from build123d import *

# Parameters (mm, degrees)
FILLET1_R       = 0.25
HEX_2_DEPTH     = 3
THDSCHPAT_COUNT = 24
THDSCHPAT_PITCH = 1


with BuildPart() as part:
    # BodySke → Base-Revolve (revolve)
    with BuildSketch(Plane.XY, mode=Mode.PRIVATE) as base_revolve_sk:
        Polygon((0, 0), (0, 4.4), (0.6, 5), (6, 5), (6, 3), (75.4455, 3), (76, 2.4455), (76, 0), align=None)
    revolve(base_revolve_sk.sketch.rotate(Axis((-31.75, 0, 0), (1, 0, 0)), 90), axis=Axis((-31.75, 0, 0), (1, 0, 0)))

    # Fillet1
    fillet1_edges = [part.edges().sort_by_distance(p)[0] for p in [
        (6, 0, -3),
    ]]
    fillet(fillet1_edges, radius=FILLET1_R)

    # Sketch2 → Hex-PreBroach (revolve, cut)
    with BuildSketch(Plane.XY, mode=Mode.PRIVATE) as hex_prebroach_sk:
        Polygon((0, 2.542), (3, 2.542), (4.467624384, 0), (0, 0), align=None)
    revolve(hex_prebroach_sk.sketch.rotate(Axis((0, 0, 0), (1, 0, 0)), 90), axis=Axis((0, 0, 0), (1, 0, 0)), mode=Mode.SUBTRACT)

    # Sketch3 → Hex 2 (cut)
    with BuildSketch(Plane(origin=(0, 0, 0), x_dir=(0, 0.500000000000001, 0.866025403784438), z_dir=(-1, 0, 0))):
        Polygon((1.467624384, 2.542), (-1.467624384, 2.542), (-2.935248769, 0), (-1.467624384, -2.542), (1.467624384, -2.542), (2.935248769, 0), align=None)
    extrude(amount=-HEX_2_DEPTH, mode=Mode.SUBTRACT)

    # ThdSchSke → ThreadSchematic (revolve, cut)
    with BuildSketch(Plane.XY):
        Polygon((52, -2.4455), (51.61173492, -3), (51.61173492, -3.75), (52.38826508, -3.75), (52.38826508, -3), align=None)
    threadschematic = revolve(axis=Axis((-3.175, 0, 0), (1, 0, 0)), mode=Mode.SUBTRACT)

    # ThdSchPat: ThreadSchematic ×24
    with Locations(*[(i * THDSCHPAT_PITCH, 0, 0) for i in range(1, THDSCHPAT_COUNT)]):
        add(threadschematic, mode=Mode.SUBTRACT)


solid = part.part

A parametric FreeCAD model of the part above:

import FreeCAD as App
import Part
import Sketcher
Q = App.Units.Quantity


def edges_at(feature, points):
    """Names of the edges that pass closest to the given points."""
    edges = feature.Shape.Edges
    near = lambda p: min(range(len(edges)), key=lambda i: edges[i].distToShape(Part.Vertex(*p))[0])
    return sorted({f"Edge{near(p) + 1}" for p in points})

doc = App.newDocument("Part")
params = doc.addObject("Spreadsheet::Sheet", "Params")
for row, (alias, value) in enumerate([
    ("sketch1_width", "76 mm"),
    ("sketch1_height", "2 mm"),
    ("sketch1_width2", "5.4 mm"),
    ("sketch1_height2", "4.4 mm"),
    ("revolution_angle", "360 deg"),
    ("fillet_radius", "0.25 mm"),
    ("sketch2_width", "3 mm"),
    ("groove_angle", "360 deg"),
    ("pocket1_length", "3 mm"),
    ("sketch4_height", "0.75 mm"),
    ("groove2_angle", "360 deg"),
    ("linearpattern_pitch", "1 mm"),
], start=1):
    params.set(f"A{row}", alias)
    params.set(f"B{row}", "=" + value)
    params.setAlias(f"B{row}", alias)

body = doc.addObject("PartDesign::Body", "Body")

sketch1 = body.newObject("Sketcher::SketchObject", "Sketch")
sketch1.AttachmentSupport = (doc.getObject("XY_Plane"), [""])
sketch1.MapMode = "FlatFace"
sketch1.addGeometry([
    Part.LineSegment(App.Vector(0, 4.4, 0), App.Vector(0, 0, 0)),
    Part.LineSegment(App.Vector(0, 0, 0), App.Vector(76, 0, 0)),
    Part.LineSegment(App.Vector(76, 0, 0), App.Vector(76, 2.4, 0)),
    Part.LineSegment(App.Vector(76, 2.4, 0), App.Vector(75.4, 3, 0)),
    Part.LineSegment(App.Vector(75.4, 3, 0), App.Vector(6, 3, 0)),
    Part.LineSegment(App.Vector(6, 3, 0), App.Vector(6, 5, 0)),
    Part.LineSegment(App.Vector(6, 5, 0), App.Vector(0.6, 5, 0)),
    Part.LineSegment(App.Vector(0.6, 5, 0), App.Vector(0, 4.4, 0)),
], False)
sketch1.addConstraint([
    Sketcher.Constraint("Coincident", 0, 2, 1, 1),
    Sketcher.Constraint("Coincident", 1, 2, 2, 1),
    Sketcher.Constraint("Coincident", 2, 2, 3, 1),
    Sketcher.Constraint("Coincident", 3, 2, 4, 1),
    Sketcher.Constraint("Coincident", 4, 2, 5, 1),
    Sketcher.Constraint("Coincident", 5, 2, 6, 1),
    Sketcher.Constraint("Coincident", 6, 2, 7, 1),
    Sketcher.Constraint("Coincident", 7, 2, 0, 1),
    Sketcher.Constraint("Vertical", 0),
    Sketcher.Constraint("Horizontal", 1),
    Sketcher.Constraint("Vertical", 2),
    Sketcher.Constraint("Horizontal", 4),
    Sketcher.Constraint("Vertical", 5),
    Sketcher.Constraint("Horizontal", 6),
    Sketcher.Constraint("Coincident", 0, 2, -1, 1),
    Sketcher.Constraint("Perpendicular", 3, 7),
    Sketcher.Constraint("DistanceX", 1, 1, 1, 2, 76.0),
    Sketcher.Constraint("DistanceY", 5, 1, 5, 2, 2.0),
    Sketcher.Constraint("Angle", 3, Q("135 deg")),
    Sketcher.Constraint("DistanceX", 6, 2, 6, 1, 5.4),
    Sketcher.Constraint("DistanceY", 0, 2, 0, 1, 4.4),
    Sketcher.Constraint("DistanceY", -1, 1, 3, 2, 3.0),
    Sketcher.Constraint("DistanceX", 4, 2, 4, 1, 69.4455),
])
sketch1.setExpression("Constraints[16]", "Params.sketch1_width")
sketch1.setExpression("Constraints[17]", "Params.sketch1_height")
sketch1.setExpression("Constraints[19]", "Params.sketch1_width2")
sketch1.setExpression("Constraints[20]", "Params.sketch1_height2")
revolution = body.newObject("PartDesign::Revolution", "Revolution")
revolution.Profile = sketch1
revolution.ReferenceAxis = (sketch1, ["H_Axis"])
revolution.setExpression("Angle", "Params.revolution_angle")
doc.recompute()

fillet = body.newObject("PartDesign::Fillet", "Fillet")
fillet.Base = (revolution, edges_at(revolution, [(6, 0, -3)]))
fillet.setExpression("Radius", "Params.fillet_radius")

sketch2 = body.newObject("Sketcher::SketchObject", "Sketch001")
sketch2.AttachmentSupport = (doc.getObject("XY_Plane"), [""])
sketch2.MapMode = "FlatFace"
sketch2.addGeometry([
    Part.LineSegment(App.Vector(3, 2.5, 0), App.Vector(0, 2.5, 0)),
    Part.LineSegment(App.Vector(0, 2.5, 0), App.Vector(0, 0, 0)),
    Part.LineSegment(App.Vector(0, 0, 0), App.Vector(4.5, 0, 0)),
    Part.LineSegment(App.Vector(4.5, 0, 0), App.Vector(3, 2.5, 0)),
], False)
sketch2.addConstraint([
    Sketcher.Constraint("Coincident", 0, 2, 1, 1),
    Sketcher.Constraint("Coincident", 1, 2, 2, 1),
    Sketcher.Constraint("Coincident", 2, 2, 3, 1),
    Sketcher.Constraint("Coincident", 3, 2, 0, 1),
    Sketcher.Constraint("Horizontal", 0),
    Sketcher.Constraint("Vertical", 1),
    Sketcher.Constraint("Horizontal", 2),
    Sketcher.Constraint("Coincident", 1, 2, -1, 1),
    Sketcher.Constraint("DistanceX", 0, 2, 0, 1, 3.0),
    Sketcher.Constraint("Angle", 3, Q("120 deg")),
    Sketcher.Constraint("DistanceY", 1, 2, 1, 1, 2.542),
])
sketch2.setExpression("Constraints[8]", "Params.sketch2_width")
groove = body.newObject("PartDesign::Groove", "Groove")
groove.Profile = sketch2
groove.ReferenceAxis = (sketch2, ["H_Axis"])
groove.setExpression("Angle", "Params.groove_angle")

sketch3 = body.newObject("Sketcher::SketchObject", "Sketch002")
sketch3.AttachmentSupport = (doc.getObject("YZ_Plane"), [""])
sketch3.MapMode = "FlatFace"
sketch3.addGeometry([
    Part.LineSegment(App.Vector(2.9, 0, 0), App.Vector(1.5, -2.5, 0)),
    Part.LineSegment(App.Vector(1.5, -2.5, 0), App.Vector(-1.5, -2.5, 0)),
    Part.LineSegment(App.Vector(-1.5, -2.5, 0), App.Vector(-2.9, 0, 0)),
    Part.LineSegment(App.Vector(-2.9, 0, 0), App.Vector(-1.5, 2.5, 0)),
    Part.LineSegment(App.Vector(-1.5, 2.5, 0), App.Vector(1.5, 2.5, 0)),
    Part.LineSegment(App.Vector(1.5, 2.5, 0), App.Vector(2.9, 0, 0)),
], False)
sketch3.addConstraint([
    Sketcher.Constraint("Coincident", 0, 2, 1, 1),
    Sketcher.Constraint("Coincident", 1, 2, 2, 1),
    Sketcher.Constraint("Coincident", 2, 2, 3, 1),
    Sketcher.Constraint("Coincident", 3, 2, 4, 1),
    Sketcher.Constraint("Coincident", 4, 2, 5, 1),
    Sketcher.Constraint("Coincident", 5, 2, 0, 1),
    Sketcher.Constraint("Horizontal", 1),
    Sketcher.Constraint("Horizontal", 4),
    Sketcher.Constraint("Symmetric", 0, 2, 3, 2, -1, 1),
    Sketcher.Constraint("Symmetric", 2, 2, 5, 2, -1, 1),
    Sketcher.Constraint("PointOnObject", 2, 2, -1),
    Sketcher.Constraint("Parallel", 2, 5),
    Sketcher.Constraint("Vertical", 1, 2, 3, 2),
    Sketcher.Constraint("Angle", 0, Q("-120 deg")),
    Sketcher.Constraint("DistanceY", 0, 2, -1, 1, 2.542),
    Sketcher.Constraint("DistanceX", 1, 2, 1, 1, 2.935249),
])
pocket1 = body.newObject("PartDesign::Pocket", "Pocket")
pocket1.Profile = sketch3
pocket1.setExpression("Length", "Params.pocket1_length")
pocket1.Reversed = True

sketch4 = body.newObject("Sketcher::SketchObject", "Sketch003")
sketch4.AttachmentSupport = (doc.getObject("XY_Plane"), [""])
sketch4.MapMode = "FlatFace"
sketch4.addGeometry([
    Part.LineSegment(App.Vector(52, -2.4, 0), App.Vector(51.6, -3, 0)),
    Part.LineSegment(App.Vector(51.6, -3, 0), App.Vector(51.6, -3.8, 0)),
    Part.LineSegment(App.Vector(51.6, -3.8, 0), App.Vector(52.4, -3.8, 0)),
    Part.LineSegment(App.Vector(52.4, -3.8, 0), App.Vector(52.4, -3, 0)),
    Part.LineSegment(App.Vector(52.4, -3, 0), App.Vector(52, -2.4, 0)),
], False)
sketch4.addConstraint([
    Sketcher.Constraint("Coincident", 0, 2, 1, 1),
    Sketcher.Constraint("Coincident", 1, 2, 2, 1),
    Sketcher.Constraint("Coincident", 2, 2, 3, 1),
    Sketcher.Constraint("Coincident", 3, 2, 4, 1),
    Sketcher.Constraint("Coincident", 4, 2, 0, 1),
    Sketcher.Constraint("Vertical", 1),
    Sketcher.Constraint("Horizontal", 2),
    Sketcher.Constraint("Vertical", 3),
    Sketcher.Constraint("Horizontal", 0, 2, 3, 2),
    Sketcher.Constraint("Equal", 0, 4),
    Sketcher.Constraint("Angle", 0, Q("-125 deg")),
    Sketcher.Constraint("DistanceY", 0, 2, -1, 1, 3.0),
    Sketcher.Constraint("DistanceX", -1, 1, 4, 2, 52.0),
    Sketcher.Constraint("DistanceY", 1, 2, 1, 1, 0.75),
    Sketcher.Constraint("DistanceX", 2, 1, 2, 2, 0.77653),
])
sketch4.setExpression("Constraints[13]", "Params.sketch4_height")
groove2 = body.newObject("PartDesign::Groove", "Groove001")
groove2.Profile = sketch4
groove2.ReferenceAxis = (sketch4, ["H_Axis"])
groove2.setExpression("Angle", "Params.groove2_angle")
doc.recompute()

linearpattern = body.newObject("PartDesign::LinearPattern", "LinearPattern")
linearpattern.Originals = [groove2]
linearpattern.Direction = (doc.getObject("X_Axis"), [""])
linearpattern.Mode = "offset"
linearpattern.setExpression("Offset", "Params.linearpattern_pitch")
linearpattern.Occurrences = 24
body.Tip = linearpattern

doc.recompute()
